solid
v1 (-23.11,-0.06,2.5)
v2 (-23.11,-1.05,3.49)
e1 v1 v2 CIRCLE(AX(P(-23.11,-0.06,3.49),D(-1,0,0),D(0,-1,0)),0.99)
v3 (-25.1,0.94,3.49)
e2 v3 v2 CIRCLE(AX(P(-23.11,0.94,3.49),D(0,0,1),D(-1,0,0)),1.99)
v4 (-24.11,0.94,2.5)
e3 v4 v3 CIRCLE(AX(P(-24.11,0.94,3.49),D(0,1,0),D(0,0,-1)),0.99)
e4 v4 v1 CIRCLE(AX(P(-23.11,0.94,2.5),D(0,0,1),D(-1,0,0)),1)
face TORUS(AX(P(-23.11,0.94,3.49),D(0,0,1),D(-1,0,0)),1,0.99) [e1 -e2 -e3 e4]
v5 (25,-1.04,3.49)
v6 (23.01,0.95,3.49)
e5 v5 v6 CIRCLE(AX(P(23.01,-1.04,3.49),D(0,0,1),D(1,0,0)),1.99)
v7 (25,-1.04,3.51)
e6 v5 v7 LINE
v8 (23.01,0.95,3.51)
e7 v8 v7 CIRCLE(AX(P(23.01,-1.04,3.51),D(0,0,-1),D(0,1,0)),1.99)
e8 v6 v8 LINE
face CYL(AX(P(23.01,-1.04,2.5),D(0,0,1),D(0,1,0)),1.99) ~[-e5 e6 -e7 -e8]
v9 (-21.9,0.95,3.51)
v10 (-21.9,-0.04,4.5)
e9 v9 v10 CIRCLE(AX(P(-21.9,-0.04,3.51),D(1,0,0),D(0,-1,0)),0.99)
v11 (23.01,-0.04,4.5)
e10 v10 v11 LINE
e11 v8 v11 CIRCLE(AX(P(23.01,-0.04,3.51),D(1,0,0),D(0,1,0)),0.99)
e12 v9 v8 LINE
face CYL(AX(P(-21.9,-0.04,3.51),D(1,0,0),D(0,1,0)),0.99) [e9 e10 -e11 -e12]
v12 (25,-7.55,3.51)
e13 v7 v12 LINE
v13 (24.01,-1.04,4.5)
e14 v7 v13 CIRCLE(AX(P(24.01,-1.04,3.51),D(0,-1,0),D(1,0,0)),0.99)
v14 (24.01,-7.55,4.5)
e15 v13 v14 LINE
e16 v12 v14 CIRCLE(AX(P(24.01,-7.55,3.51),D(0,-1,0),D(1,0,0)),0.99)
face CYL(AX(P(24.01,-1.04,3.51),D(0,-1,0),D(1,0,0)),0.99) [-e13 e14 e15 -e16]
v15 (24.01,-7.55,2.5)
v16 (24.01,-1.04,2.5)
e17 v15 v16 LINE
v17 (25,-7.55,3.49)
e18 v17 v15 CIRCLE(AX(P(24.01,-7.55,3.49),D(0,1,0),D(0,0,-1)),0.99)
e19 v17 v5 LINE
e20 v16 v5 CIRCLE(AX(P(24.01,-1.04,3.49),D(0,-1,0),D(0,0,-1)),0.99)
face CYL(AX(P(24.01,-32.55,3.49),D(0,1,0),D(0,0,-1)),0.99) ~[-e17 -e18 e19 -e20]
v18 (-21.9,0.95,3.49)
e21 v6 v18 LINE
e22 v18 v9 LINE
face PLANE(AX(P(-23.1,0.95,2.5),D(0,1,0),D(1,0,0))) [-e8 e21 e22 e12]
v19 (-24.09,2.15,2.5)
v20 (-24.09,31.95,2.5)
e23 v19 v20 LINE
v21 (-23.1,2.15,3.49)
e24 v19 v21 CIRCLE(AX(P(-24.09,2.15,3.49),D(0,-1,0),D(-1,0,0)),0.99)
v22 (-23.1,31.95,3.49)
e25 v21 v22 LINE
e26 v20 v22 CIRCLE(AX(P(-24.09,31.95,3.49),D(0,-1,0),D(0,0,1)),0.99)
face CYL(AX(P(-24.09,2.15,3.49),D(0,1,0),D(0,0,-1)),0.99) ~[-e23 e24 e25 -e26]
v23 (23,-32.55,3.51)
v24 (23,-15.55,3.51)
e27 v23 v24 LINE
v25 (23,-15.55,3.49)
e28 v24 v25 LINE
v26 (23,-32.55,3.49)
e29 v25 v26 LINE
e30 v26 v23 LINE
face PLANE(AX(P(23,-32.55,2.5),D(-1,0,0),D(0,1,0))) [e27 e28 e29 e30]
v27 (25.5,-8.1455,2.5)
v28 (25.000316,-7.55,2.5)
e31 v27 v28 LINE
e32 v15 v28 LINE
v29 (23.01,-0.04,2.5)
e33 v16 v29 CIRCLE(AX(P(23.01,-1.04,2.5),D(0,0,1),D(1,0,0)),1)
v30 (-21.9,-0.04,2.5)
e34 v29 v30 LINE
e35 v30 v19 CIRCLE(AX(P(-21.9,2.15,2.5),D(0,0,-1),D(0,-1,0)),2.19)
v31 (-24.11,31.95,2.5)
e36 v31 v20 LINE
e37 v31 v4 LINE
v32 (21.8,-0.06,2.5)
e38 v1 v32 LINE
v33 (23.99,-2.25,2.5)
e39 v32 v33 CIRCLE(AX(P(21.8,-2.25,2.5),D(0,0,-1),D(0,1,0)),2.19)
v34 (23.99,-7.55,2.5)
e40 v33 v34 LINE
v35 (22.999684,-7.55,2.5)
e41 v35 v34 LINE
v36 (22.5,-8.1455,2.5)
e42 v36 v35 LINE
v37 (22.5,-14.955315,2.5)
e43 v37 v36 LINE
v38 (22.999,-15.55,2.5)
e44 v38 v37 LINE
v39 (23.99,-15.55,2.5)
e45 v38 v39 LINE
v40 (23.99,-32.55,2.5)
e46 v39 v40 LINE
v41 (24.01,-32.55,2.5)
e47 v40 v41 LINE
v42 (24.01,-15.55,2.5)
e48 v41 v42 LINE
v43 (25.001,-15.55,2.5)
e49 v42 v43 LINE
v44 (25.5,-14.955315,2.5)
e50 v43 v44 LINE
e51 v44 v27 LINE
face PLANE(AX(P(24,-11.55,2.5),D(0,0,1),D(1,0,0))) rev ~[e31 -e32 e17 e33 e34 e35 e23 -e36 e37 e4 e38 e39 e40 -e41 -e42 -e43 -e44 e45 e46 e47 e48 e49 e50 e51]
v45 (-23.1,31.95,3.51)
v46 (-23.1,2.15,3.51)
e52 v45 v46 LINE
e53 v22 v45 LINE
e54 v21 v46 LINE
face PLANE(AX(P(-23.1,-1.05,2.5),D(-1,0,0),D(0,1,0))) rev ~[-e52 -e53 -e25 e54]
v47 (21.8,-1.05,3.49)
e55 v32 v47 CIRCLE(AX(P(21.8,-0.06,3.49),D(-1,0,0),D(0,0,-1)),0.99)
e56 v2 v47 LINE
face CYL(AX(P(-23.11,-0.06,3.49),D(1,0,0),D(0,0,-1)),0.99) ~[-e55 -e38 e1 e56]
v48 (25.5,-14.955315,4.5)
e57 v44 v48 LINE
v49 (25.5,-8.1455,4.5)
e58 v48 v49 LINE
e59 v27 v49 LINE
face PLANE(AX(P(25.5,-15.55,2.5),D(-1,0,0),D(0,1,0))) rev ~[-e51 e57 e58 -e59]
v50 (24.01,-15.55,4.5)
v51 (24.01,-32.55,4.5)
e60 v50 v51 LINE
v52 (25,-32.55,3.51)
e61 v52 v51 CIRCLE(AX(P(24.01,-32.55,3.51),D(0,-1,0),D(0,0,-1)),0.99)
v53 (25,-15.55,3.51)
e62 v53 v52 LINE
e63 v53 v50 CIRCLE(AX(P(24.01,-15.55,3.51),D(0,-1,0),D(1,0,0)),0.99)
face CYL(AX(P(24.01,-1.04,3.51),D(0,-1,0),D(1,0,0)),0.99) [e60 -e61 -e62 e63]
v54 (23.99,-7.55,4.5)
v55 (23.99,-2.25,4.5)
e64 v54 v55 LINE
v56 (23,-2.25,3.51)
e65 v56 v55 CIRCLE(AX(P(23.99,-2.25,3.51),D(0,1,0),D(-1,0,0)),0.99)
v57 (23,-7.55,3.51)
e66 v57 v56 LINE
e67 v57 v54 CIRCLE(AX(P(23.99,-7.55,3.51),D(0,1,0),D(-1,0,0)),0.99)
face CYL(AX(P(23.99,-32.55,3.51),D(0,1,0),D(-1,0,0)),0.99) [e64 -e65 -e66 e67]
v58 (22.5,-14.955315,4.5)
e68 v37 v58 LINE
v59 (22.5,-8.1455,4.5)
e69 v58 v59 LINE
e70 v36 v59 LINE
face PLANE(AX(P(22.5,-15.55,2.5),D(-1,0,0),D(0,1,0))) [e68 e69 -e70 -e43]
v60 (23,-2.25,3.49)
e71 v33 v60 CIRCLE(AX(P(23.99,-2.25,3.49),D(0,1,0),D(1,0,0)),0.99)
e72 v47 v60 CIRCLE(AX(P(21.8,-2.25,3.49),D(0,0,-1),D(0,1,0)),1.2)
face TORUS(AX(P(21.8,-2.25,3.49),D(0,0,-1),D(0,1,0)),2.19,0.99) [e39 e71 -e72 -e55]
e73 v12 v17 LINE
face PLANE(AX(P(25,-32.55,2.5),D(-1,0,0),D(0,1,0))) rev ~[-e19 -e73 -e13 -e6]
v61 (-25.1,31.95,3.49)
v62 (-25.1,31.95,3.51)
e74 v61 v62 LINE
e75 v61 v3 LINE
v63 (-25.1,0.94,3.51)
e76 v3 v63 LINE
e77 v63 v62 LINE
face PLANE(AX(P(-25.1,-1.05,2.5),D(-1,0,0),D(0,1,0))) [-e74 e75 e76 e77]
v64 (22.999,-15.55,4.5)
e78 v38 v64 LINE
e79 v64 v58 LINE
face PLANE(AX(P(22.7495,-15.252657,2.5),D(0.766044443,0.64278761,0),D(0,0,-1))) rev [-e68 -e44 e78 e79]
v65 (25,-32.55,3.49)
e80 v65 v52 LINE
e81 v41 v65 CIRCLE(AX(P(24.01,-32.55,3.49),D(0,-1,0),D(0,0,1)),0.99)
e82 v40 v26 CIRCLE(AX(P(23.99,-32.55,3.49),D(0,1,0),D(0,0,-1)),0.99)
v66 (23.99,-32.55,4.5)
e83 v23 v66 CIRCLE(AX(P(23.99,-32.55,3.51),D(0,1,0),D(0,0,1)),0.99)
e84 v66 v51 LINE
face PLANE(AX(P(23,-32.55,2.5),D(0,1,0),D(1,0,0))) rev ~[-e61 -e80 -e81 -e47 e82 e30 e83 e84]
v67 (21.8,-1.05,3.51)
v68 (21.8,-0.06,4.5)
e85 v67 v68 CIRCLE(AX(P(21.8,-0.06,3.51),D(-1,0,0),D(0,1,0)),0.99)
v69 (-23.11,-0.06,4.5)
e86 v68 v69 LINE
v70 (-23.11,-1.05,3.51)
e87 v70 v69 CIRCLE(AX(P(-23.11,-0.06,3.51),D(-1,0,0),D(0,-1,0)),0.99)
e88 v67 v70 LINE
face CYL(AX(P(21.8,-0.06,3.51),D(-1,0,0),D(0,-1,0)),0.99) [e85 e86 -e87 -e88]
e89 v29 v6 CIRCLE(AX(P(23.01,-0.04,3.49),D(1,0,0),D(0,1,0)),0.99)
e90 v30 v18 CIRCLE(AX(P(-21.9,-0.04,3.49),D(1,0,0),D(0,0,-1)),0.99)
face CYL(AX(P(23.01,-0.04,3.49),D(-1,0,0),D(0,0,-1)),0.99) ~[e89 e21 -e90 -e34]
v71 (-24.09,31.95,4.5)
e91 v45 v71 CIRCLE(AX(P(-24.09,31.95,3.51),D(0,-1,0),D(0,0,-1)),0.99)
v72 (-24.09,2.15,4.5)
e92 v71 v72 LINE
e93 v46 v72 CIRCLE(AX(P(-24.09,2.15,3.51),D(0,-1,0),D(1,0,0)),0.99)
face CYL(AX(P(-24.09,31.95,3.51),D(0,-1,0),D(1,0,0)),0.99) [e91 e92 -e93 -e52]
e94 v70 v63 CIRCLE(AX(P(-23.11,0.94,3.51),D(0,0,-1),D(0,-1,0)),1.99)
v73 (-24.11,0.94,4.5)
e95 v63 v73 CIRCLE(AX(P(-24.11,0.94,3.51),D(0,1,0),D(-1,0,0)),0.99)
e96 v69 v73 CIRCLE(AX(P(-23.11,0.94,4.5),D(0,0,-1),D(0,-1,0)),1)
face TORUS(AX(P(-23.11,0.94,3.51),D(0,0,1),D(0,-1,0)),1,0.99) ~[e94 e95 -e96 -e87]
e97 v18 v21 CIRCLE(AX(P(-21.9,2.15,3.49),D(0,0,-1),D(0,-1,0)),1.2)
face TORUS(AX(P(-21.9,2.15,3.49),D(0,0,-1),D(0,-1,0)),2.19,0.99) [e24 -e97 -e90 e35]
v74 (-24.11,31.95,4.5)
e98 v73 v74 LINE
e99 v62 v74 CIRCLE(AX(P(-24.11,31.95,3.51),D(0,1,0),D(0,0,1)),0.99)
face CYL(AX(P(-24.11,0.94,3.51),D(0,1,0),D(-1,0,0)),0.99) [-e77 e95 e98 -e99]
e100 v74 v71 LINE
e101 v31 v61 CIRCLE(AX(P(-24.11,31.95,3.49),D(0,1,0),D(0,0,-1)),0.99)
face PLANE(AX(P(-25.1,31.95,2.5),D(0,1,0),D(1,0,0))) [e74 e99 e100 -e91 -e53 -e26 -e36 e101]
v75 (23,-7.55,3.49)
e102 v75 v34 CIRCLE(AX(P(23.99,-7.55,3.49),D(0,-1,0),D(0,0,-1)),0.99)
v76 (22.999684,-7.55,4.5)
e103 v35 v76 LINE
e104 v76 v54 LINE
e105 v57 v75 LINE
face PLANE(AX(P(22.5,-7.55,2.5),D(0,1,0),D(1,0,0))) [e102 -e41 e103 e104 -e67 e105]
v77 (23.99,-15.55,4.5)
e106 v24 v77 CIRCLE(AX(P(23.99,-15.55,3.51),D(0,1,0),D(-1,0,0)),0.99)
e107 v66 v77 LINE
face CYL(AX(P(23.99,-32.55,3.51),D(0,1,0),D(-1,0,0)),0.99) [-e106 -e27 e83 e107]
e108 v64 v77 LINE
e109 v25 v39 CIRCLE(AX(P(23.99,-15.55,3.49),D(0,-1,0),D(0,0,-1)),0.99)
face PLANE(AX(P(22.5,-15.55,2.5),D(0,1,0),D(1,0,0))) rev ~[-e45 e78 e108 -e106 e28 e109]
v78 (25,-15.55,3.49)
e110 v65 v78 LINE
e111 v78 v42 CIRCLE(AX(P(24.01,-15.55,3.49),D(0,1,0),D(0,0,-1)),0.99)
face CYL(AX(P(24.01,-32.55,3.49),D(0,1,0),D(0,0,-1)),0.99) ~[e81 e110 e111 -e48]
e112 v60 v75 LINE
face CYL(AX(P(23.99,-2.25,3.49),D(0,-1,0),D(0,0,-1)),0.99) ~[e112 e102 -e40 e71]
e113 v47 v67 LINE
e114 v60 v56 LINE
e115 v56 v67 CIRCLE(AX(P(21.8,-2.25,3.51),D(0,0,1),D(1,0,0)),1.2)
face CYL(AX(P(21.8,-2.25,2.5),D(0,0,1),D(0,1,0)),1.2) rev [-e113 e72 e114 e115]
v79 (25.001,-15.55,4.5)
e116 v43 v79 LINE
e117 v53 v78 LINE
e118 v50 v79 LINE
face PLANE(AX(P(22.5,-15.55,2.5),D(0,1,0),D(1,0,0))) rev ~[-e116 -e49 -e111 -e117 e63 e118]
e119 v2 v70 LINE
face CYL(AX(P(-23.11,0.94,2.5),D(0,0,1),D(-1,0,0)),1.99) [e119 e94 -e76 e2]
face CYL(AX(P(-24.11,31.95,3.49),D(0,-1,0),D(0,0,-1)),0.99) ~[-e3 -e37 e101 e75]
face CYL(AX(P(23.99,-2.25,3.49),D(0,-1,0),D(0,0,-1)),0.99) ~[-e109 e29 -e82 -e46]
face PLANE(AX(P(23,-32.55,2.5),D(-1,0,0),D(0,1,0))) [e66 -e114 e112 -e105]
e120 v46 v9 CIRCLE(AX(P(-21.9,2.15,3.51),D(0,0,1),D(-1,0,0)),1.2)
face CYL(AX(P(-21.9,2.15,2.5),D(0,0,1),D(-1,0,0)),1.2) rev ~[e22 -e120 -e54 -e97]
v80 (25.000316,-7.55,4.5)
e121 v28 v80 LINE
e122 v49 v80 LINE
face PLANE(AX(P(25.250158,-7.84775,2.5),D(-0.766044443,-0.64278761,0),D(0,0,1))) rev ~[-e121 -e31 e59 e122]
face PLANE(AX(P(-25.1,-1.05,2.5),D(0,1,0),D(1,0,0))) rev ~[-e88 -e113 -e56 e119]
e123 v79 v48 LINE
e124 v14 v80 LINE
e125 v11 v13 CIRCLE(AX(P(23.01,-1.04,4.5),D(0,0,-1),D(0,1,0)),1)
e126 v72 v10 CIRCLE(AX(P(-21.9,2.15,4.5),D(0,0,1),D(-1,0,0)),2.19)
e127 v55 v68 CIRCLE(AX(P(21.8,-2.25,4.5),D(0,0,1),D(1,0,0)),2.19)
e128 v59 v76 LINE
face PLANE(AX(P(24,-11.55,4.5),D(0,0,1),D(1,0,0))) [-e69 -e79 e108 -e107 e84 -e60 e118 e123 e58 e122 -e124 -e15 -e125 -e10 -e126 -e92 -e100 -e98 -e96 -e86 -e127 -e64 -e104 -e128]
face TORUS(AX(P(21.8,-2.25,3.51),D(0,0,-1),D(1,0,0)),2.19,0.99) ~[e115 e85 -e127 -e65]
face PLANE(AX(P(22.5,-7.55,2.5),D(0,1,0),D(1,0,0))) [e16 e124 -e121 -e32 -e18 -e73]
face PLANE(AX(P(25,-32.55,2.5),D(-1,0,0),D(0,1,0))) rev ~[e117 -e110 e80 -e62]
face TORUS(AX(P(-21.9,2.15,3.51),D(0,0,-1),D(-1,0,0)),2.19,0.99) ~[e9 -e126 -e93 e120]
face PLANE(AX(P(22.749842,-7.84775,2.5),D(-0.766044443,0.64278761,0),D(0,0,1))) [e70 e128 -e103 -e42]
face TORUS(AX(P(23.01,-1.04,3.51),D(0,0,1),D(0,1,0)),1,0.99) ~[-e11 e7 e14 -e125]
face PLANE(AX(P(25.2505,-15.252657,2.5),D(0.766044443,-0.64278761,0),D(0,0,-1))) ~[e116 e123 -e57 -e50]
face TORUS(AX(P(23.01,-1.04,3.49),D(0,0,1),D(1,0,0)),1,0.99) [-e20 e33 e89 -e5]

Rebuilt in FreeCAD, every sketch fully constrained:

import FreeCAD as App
import Part
import Sketcher
from FreeCAD import Vector


def edges_at(feature, points):
    """Names of the edges that pass closest to the given points."""
    edges = feature.Shape.Edges
    near = lambda p: min(range(len(edges)), key=lambda i: edges[i].distToShape(Part.Vertex(*p))[0])
    return sorted({f"Edge{near(p) + 1}" for p in points})

doc = App.newDocument("Part")
body = doc.addObject("PartDesign::Body", "Body")

sketch1 = body.newObject("Sketcher::SketchObject", "Sketch")
sketch1.AttachmentSupport = (doc.getObject("XY_Plane"), [""])
sketch1.MapMode = "FlatFace"
sketch1.AttachmentOffset = App.Placement(Vector(0, 0, 2.5), App.Rotation())
sketch1.addGeometry([
    Part.LineSegment(Vector(23, 1.5, 0), Vector(23, -32, 0)),
    Part.LineSegment(Vector(23, -32, 0), Vector(25, -32, 0)),
    Part.LineSegment(Vector(25, -32, 0), Vector(25, 1.5, 0)),
    Part.LineSegment(Vector(25, 1.5, 0), Vector(23, 1.5, 0)),
], False)
sketch1.addConstraint([
    Sketcher.Constraint("Coincident", 0, 2, 1, 1),
    Sketcher.Constraint("Coincident", 1, 2, 2, 1),
    Sketcher.Constraint("Coincident", 2, 2, 3, 1),
    Sketcher.Constraint("Coincident", 3, 2, 0, 1),
    Sketcher.Constraint("Vertical", 0),
    Sketcher.Constraint("Horizontal", 1),
    Sketcher.Constraint("Vertical", 2),
    Sketcher.Constraint("Horizontal", 3),
    Sketcher.Constraint("DistanceX", 1, 1, 1, 2, 2.0),
    Sketcher.Constraint("DistanceY", 0, 2, 0, 1, 33.5),
    Sketcher.Constraint("DistanceX", -1, 1, 0, 2, 23.0),
    Sketcher.Constraint("DistanceY", 0, 2, -1, 1, 32.0),
])
pad1 = body.newObject("PartDesign::Pad", "Pad")
pad1.Profile = sketch1
pad1.Length = 2

sketch2 = body.newObject("Sketcher::SketchObject", "Sketch001")
sketch2.AttachmentSupport = (doc.getObject("XY_Plane"), [""])
sketch2.MapMode = "FlatFace"
sketch2.AttachmentOffset = App.Placement(Vector(0, 0, 2.5), App.Rotation())
sketch2.addGeometry([
    Part.LineSegment(Vector(-23.1, 1.5, 0), Vector(-23.1, -0.5, 0)),
    Part.LineSegment(Vector(-23.1, -0.5, 0), Vector(23, -0.5, 0)),
    Part.LineSegment(Vector(23, -0.5, 0), Vector(23, 1.5, 0)),
    Part.LineSegment(Vector(23, 1.5, 0), Vector(-23.1, 1.5, 0)),
], False)
sketch2.addConstraint([
    Sketcher.Constraint("Coincident", 0, 2, 1, 1),
    Sketcher.Constraint("Coincident", 1, 2, 2, 1),
    Sketcher.Constraint("Coincident", 2, 2, 3, 1),
    Sketcher.Constraint("Coincident", 3, 2, 0, 1),
    Sketcher.Constraint("Vertical", 0),
    Sketcher.Constraint("Horizontal", 1),
    Sketcher.Constraint("Vertical", 2),
    Sketcher.Constraint("Horizontal", 3),
    Sketcher.Constraint("DistanceY", 0, 2, 0, 1, 2.0),
    Sketcher.Constraint("DistanceX", 1, 1, 1, 2, 46.1),
    Sketcher.Constraint("DistanceX", -1, 1, 1, 2, 23.0),
    Sketcher.Constraint("DistanceY", 0, 2, -1, 1, 0.5),
])
pad2 = body.newObject("PartDesign::Pad", "Pad001")
pad2.Profile = sketch2
pad2.Length = 2

sketch3 = body.newObject("Sketcher::SketchObject", "Sketch002")
sketch3.AttachmentSupport = (doc.getObject("XY_Plane"), [""])
sketch3.MapMode = "FlatFace"
sketch3.AttachmentOffset = App.Placement(Vector(0, 0, 2.5), App.Rotation())
sketch3.addGeometry([
    Part.LineSegment(Vector(-25.1, 32.5, 0), Vector(-25.1, -0.5, 0)),
    Part.LineSegment(Vector(-25.1, -0.5, 0), Vector(-23.1, -0.5, 0)),
    Part.LineSegment(Vector(-23.1, -0.5, 0), Vector(-23.1, 32.5, 0)),
    Part.LineSegment(Vector(-23.1, 32.5, 0), Vector(-25.1, 32.5, 0)),
], False)
sketch3.addConstraint([
    Sketcher.Constraint("Coincident", 0, 2, 1, 1),
    Sketcher.Constraint("Coincident", 1, 2, 2, 1),
    Sketcher.Constraint("Coincident", 2, 2, 3, 1),
    Sketcher.Constraint("Coincident", 3, 2, 0, 1),
    Sketcher.Constraint("Vertical", 0),
    Sketcher.Constraint("Horizontal", 1),
    Sketcher.Constraint("Vertical", 2),
    Sketcher.Constraint("Horizontal", 3),
    Sketcher.Constraint("DistanceX", 1, 1, 1, 2, 2.0),
    Sketcher.Constraint("DistanceY", 0, 2, 0, 1, 33.0),
    Sketcher.Constraint("DistanceX", 0, 2, -1, 1, 25.1),
    Sketcher.Constraint("DistanceY", 0, 2, -1, 1, 0.5),
])
pad3 = body.newObject("PartDesign::Pad", "Pad002")
pad3.Profile = sketch3
pad3.Length = 2
doc.recompute()

fillet = body.newObject("PartDesign::Fillet", "Fillet")
fillet.Base = (pad3, edges_at(pad3, [(-25.1, -0.5, 3.5), (25, 1.5, 3.5)]))
fillet.Radius = 1.99
doc.recompute()

fillet2 = body.newObject("PartDesign::Fillet", "Fillet001")
fillet2.Base = (fillet, edges_at(fillet, [(23, -0.5, 3.5), (-23.1, 1.5, 3.5)]))
fillet2.Radius = 1.2
doc.recompute()

fillet3 = body.newObject("PartDesign::Fillet", "Fillet002")
fillet3.Base = (fillet2, edges_at(fillet2, [
    (24.417, 0.917, 4.5),
    (25, -16.245, 4.5),
    (0.555, 1.5, 4.5),
    (-22.749, 1.851, 4.5),
    (-23.1, 17.6, 4.5),
    (25, -16.245, 2.5),
    (24.417, 0.917, 2.5),
    (0.555, 1.5, 2.5),
    (-0.655, -0.5, 2.5),
    (22.649, -0.851, 2.5),
    (23, -16.85, 2.5),
    (-24.517, 0.083, 2.5),
    (-25.1, 16.995, 2.5),
    (-23.1, 17.6, 2.5),
    (-22.749, 1.851, 2.5),
    (23, -16.85, 4.5),
    (22.649, -0.851, 4.5),
    (-0.655, -0.5, 4.5),
    (-24.517, 0.083, 4.5),
    (-25.1, 16.995, 4.5),
    (-0.655, -0.5, 4.5),
]))
fillet3.Radius = 0.99

sketch4 = body.newObject("Sketcher::SketchObject", "Sketch003")
sketch4.AttachmentSupport = (doc.getObject("XY_Plane"), [""])
sketch4.MapMode = "FlatFace"
sketch4.AttachmentOffset = App.Placement(Vector(0, 0, 2.5), App.Rotation())
sketch4.addGeometry([
    Part.LineSegment(Vector(22.5, -7, 0), Vector(22.5, -15, 0)),
    Part.LineSegment(Vector(22.5, -15, 0), Vector(25.5, -15, 0)),
    Part.LineSegment(Vector(25.5, -15, 0), Vector(25.5, -7, 0)),
    Part.LineSegment(Vector(25.5, -7, 0), Vector(22.5, -7, 0)),
], False)
sketch4.addConstraint([
    Sketcher.Constraint("Coincident", 0, 2, 1, 1),
    Sketcher.Constraint("Coincident", 1, 2, 2, 1),
    Sketcher.Constraint("Coincident", 2, 2, 3, 1),
    Sketcher.Constraint("Coincident", 3, 2, 0, 1),
    Sketcher.Constraint("Vertical", 0),
    Sketcher.Constraint("Horizontal", 1),
    Sketcher.Constraint("Vertical", 2),
    Sketcher.Constraint("Horizontal", 3),
    Sketcher.Constraint("DistanceX", 1, 1, 1, 2, 3.0),
    Sketcher.Constraint("DistanceY", 0, 2, 0, 1, 8.0),
    Sketcher.Constraint("DistanceY", 0, 2, -1, 1, 15.0),
    Sketcher.Constraint("DistanceX", -1, 1, 0, 2, 22.5),
])
pad4 = body.newObject("PartDesign::Pad", "Pad003")
pad4.Profile = sketch4
pad4.Length = 2
doc.recompute()

chamfer = body.newObject("PartDesign::Chamfer", "Chamfer")
chamfer.Base = (pad4, edges_at(pad4, [(22.5, -15, 3.5)]))
chamfer.ChamferType = "Distance and Angle"
chamfer.Size = 0.499
chamfer.Angle = 50
doc.recompute()

chamfer2 = body.newObject("PartDesign::Chamfer", "Chamfer001")
chamfer2.Base = (chamfer, edges_at(chamfer, [(25.5, -15, 3.5)]))
chamfer2.ChamferType = "Distance and Angle"
chamfer2.Size = 0.499
chamfer2.Angle = 50
doc.recompute()

chamfer3 = body.newObject("PartDesign::Chamfer", "Chamfer002")
chamfer3.Base = (chamfer2, edges_at(chamfer2, [(25.5, -7, 3.5)]))
chamfer3.ChamferType = "Distance and Angle"
chamfer3.Size = 0.5955
chamfer3.Angle = 40
doc.recompute()

chamfer4 = body.newObject("PartDesign::Chamfer", "Chamfer003")
chamfer4.Base = (chamfer3, edges_at(chamfer3, [(22.5, -7, 3.5)]))
chamfer4.ChamferType = "Distance and Angle"
chamfer4.Size = 0.5955
chamfer4.Angle = 40
body2 = doc.addObject("PartDesign::Body", "Body001")
doc.recompute()

body.Placement = App.Placement(Vector(0, -0.55, 0), App.Rotation(Vector(0, 0, 1), 0))
boolean = body2.newObject("PartDesign::Boolean", "Boolean")
boolean.Type = "Fuse"
boolean.addObjects([body])

doc.recompute()
